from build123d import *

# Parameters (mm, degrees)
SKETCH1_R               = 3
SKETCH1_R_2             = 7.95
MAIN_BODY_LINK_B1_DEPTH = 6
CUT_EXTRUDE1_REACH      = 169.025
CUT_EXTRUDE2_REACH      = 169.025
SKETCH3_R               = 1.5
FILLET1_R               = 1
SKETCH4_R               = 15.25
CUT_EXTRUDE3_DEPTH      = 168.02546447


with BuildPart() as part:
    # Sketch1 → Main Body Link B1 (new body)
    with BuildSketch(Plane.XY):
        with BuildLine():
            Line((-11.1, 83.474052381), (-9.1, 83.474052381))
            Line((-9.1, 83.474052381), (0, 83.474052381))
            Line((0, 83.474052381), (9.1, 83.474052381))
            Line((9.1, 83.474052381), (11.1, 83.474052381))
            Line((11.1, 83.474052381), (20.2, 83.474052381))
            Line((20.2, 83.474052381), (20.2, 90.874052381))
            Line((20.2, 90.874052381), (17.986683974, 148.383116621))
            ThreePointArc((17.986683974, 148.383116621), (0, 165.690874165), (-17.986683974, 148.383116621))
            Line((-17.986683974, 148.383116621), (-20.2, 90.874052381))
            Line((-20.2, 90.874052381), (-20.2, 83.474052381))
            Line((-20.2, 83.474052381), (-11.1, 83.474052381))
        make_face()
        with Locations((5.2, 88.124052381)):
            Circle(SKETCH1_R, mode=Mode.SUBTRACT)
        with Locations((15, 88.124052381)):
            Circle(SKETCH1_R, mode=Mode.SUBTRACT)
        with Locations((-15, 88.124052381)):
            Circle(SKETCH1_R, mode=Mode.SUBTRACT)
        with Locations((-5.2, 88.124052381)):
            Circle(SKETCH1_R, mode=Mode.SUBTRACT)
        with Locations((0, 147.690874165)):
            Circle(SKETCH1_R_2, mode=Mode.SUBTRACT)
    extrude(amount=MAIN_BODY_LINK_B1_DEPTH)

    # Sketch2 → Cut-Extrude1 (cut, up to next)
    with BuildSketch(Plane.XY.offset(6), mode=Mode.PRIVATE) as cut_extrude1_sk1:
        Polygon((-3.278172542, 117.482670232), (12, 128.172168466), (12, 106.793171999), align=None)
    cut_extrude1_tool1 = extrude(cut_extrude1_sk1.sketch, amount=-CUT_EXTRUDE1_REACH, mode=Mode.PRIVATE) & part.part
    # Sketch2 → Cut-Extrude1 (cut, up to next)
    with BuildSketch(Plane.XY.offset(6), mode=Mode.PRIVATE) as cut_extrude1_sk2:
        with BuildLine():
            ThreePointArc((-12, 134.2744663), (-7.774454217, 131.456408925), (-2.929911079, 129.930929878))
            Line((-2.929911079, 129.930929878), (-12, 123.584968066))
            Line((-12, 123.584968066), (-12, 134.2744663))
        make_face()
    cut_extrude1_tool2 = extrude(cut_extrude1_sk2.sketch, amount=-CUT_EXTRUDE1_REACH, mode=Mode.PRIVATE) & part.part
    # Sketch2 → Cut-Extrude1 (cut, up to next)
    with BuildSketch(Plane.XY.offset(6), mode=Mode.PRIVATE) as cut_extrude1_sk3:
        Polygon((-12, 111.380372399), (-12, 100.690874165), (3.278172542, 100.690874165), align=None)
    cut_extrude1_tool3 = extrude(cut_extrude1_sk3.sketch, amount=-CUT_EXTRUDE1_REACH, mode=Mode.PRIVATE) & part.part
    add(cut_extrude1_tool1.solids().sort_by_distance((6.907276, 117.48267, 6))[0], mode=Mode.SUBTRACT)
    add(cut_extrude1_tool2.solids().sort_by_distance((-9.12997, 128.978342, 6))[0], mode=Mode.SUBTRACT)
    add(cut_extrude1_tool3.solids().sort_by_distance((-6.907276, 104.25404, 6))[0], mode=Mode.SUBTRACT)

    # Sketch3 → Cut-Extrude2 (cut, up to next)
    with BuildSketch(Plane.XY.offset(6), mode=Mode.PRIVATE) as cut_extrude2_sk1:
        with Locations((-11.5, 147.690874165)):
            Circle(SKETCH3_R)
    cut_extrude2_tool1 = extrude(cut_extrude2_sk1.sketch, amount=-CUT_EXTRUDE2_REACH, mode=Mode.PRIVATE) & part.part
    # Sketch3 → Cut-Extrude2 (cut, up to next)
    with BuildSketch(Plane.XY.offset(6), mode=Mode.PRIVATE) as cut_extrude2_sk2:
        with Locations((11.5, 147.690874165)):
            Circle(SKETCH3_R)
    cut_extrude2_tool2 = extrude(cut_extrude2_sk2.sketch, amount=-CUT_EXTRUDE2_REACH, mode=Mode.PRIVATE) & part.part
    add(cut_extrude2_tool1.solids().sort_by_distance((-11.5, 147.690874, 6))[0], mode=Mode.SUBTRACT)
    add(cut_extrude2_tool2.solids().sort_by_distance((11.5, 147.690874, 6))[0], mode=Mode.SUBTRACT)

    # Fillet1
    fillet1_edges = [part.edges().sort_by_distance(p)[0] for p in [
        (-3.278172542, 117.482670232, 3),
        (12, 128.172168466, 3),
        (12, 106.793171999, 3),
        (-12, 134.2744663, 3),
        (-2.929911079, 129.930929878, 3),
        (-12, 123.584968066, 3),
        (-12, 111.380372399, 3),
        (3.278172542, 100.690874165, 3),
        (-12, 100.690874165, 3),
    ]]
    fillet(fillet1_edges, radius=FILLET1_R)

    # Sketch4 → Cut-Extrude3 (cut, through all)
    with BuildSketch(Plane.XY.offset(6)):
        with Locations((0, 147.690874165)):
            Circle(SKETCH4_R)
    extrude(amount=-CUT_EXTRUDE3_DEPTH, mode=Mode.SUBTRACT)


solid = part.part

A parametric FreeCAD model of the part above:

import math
import FreeCAD as App
import Part
import Sketcher
Q = App.Units.Quantity


def edges_at(feature, points):
    """Names of the edges that pass closest to the given points."""
    edges = feature.Shape.Edges
    near = lambda p: min(range(len(edges)), key=lambda i: edges[i].distToShape(Part.Vertex(*p))[0])
    return sorted({f"Edge{near(p) + 1}" for p in points})


def add_polygon(sketch, points):
    """Adds a closed chain of lines whose ends are joined by coincident constraints."""
    first, n = sketch.GeometryCount, len(points)
    for a, b in zip(points, points[1:] + points[:1]):
        sketch.addGeometry(Part.LineSegment(App.Vector(*a, 0), App.Vector(*b, 0)), False)
    for i in range(n):
        sketch.addConstraint(Sketcher.Constraint("Coincident", first + i, 2, first + (i + 1) % n, 1))

doc = App.newDocument("Part")
body = doc.addObject("PartDesign::Body", "Body")

sketch1 = body.newObject("Sketcher::SketchObject", "Sketch")
sketch1.AttachmentSupport = (doc.getObject("XY_Plane"), [""])
sketch1.MapMode = "FlatFace"
sketch1.addGeometry(Part.LineSegment(App.Vector(20.2, 83.5, 0), App.Vector(20.2, 90.9, 0)), False)
sketch1.addGeometry(Part.LineSegment(App.Vector(20.2, 90.9, 0), App.Vector(18, 148.4, 0)), False)
sketch1.addGeometry(Part.ArcOfCircle(Part.Circle(App.Vector(0, 147.7, 0), App.Vector(0, 0, 1), 18), math.radians(2), math.radians(178)), False)
sketch1.addGeometry(Part.LineSegment(App.Vector(-18, 148.4, 0), App.Vector(-20.2, 90.9, 0)), False)
sketch1.addGeometry(Part.LineSegment(App.Vector(-20.2, 90.9, 0), App.Vector(-20.2, 83.5, 0)), False)
sketch1.addGeometry(Part.LineSegment(App.Vector(-20.2, 83.5, 0), App.Vector(20.2, 83.5, 0)), False)
sketch1.addGeometry(Part.Circle(App.Vector(-15, 88.1, 0), App.Vector(0, 0, 1), 3), False)
sketch1.addGeometry(Part.Circle(App.Vector(-5.2, 88.1, 0), App.Vector(0, 0, 1), 3), False)
sketch1.addGeometry(Part.Circle(App.Vector(5.2, 88.1, 0), App.Vector(0, 0, 1), 3), False)
sketch1.addGeometry(Part.Circle(App.Vector(15, 88.1, 0), App.Vector(0, 0, 1), 3), False)
sketch1.addGeometry(Part.Circle(App.Vector(0, 147.7, 0), App.Vector(0, 0, 1), 8), False)
sketch1.addConstraint(Sketcher.Constraint("Coincident", 0, 2, 1, 1))
sketch1.addConstraint(Sketcher.Constraint("Tangent", 1, 2, 2, 1))
sketch1.addConstraint(Sketcher.Constraint("Tangent", 2, 2, 3, 1))
sketch1.addConstraint(Sketcher.Constraint("Coincident", 3, 2, 4, 1))
sketch1.addConstraint(Sketcher.Constraint("Coincident", 4, 2, 5, 1))
sketch1.addConstraint(Sketcher.Constraint("Coincident", 5, 2, 0, 1))
sketch1.addConstraint(Sketcher.Constraint("Vertical", 0))
sketch1.addConstraint(Sketcher.Constraint("Vertical", 4))
sketch1.addConstraint(Sketcher.Constraint("Horizontal", 5))
sketch1.addConstraint(Sketcher.Constraint("Coincident", 10, 3, 2, 3))
sketch1.addConstraint(Sketcher.Constraint("Equal", 6, 7))
sketch1.addConstraint(Sketcher.Constraint("Equal", 7, 8))
sketch1.addConstraint(Sketcher.Constraint("Equal", 8, 9))
sketch1.addConstraint(Sketcher.Constraint("Symmetric", 7, 3, 8, 3, -2))
sketch1.addConstraint(Sketcher.Constraint("Symmetric", 6, 3, 9, 3, -2))
sketch1.addConstraint(Sketcher.Constraint("Symmetric", 1, 2, 2, 2, -2))
sketch1.addConstraint(Sketcher.Constraint("Horizontal", 6, 3, 7, 3))
sketch1.addConstraint(Sketcher.Constraint("Horizontal", 0, 2, 3, 2))
sketch1.addConstraint(Sketcher.Constraint("Diameter", 6, Q("6 mm")))
sketch1.addConstraint(Sketcher.Constraint("Radius", 2, Q("18 mm")))
sketch1.addConstraint(Sketcher.Constraint("Diameter", 10, Q("15.9 mm")))
sketch1.addConstraint(Sketcher.Constraint("DistanceX", 5, 1, 5, 2, Q("40.4 mm")))
sketch1.addConstraint(Sketcher.Constraint("DistanceY", 0, 1, 0, 2, Q("7.4 mm")))
sketch1.addConstraint(Sketcher.Constraint("DistanceX", 6, 3, -1, 1, Q("15 mm")))
sketch1.addConstraint(Sketcher.Constraint("DistanceX", 8, 3, 0, 2, Q("15 mm")))
sketch1.addConstraint(Sketcher.Constraint("DistanceY", 9, 3, 0, 2, Q("2.75 mm")))
sketch1.addConstraint(Sketcher.Constraint("Distance", 1, Q("57.55164 mm")))
sketch1.addConstraint(Sketcher.Constraint("DistanceY", -1, 1, 2, 3, Q("147.690874 mm")))
pad1 = body.newObject("PartDesign::Pad", "Pad")
pad1.Profile = sketch1
pad1.Length = 6

sketch2 = body.newObject("Sketcher::SketchObject", "Sketch001")
sketch2.AttachmentSupport = (doc.getObject("XY_Plane"), [""])
sketch2.MapMode = "FlatFace"
sketch2.AttachmentOffset = App.Placement(App.Vector(0, 0, 6), App.Rotation())
add_polygon(sketch2, [(12, 128), (-3, 117), (12, 107)])
sketch2.addConstraint(Sketcher.Constraint("Vertical", 2))
sketch2.addConstraint(Sketcher.Constraint("Equal", 0, 1))
sketch2.addConstraint(Sketcher.Constraint("DistanceX", -1, 1, 1, 2, Q("12 mm")))
sketch2.addConstraint(Sketcher.Constraint("DistanceY", 1, 2, 0, 2, Q("10.689498 mm")))
sketch2.addConstraint(Sketcher.Constraint("Distance", 0, Q("18.646392 mm")))
sketch2.addConstraint(Sketcher.Constraint("DistanceY", -1, 1, 0, 2, Q("117.48267 mm")))
pocket1 = body.newObject("PartDesign::Pocket", "Pocket")
pocket1.Profile = sketch2
pocket1.Type = "UpToFirst"

sketch3 = body.newObject("Sketcher::SketchObject", "Sketch002")
sketch3.AttachmentSupport = (doc.getObject("XY_Plane"), [""])
sketch3.MapMode = "FlatFace"
sketch3.AttachmentOffset = App.Placement(App.Vector(0, 0, 6), App.Rotation())
sketch3.addGeometry(Part.ArcOfCircle(Part.Circle(App.Vector(0, 148, 0), App.Vector(0, 0, 1), 18), math.radians(-132), math.radians(-99)), False)
sketch3.addGeometry(Part.LineSegment(App.Vector(-12, 134, 0), App.Vector(-12, 124, 0)), False)
sketch3.addGeometry(Part.LineSegment(App.Vector(-12, 124, 0), App.Vector(-3, 130, 0)), False)
sketch3.addConstraint(Sketcher.Constraint("Coincident", 0, 1, 1, 1))
sketch3.addConstraint(Sketcher.Constraint("Coincident", 1, 2, 2, 1))
sketch3.addConstraint(Sketcher.Constraint("Coincident", 2, 2, 0, 2))
sketch3.addConstraint(Sketcher.Constraint("Vertical", 1))
sketch3.addConstraint(Sketcher.Constraint("PointOnObject", 0, 3, -2))
sketch3.addConstraint(Sketcher.Constraint("Radius", 0, Q("18 mm")))
sketch3.addConstraint(Sketcher.Constraint("DistanceX", 0, 1, -1, 1, Q("12 mm")))
sketch3.addConstraint(Sketcher.Constraint("DistanceY", 1, 2, 1, 1, Q("10.689498 mm")))
sketch3.addConstraint(Sketcher.Constraint("DistanceY", -1, 1, 1, 2, Q("123.584968 mm")))
sketch3.addConstraint(Sketcher.Constraint("DistanceX", 2, 2, -1, 1, Q("2.929911 mm")))
pocket2 = body.newObject("PartDesign::Pocket", "Pocket001")
pocket2.Profile = sketch3
pocket2.Type = "UpToFirst"

sketch4 = body.newObject("Sketcher::SketchObject", "Sketch003")
sketch4.AttachmentSupport = (doc.getObject("XY_Plane"), [""])
sketch4.MapMode = "FlatFace"
sketch4.AttachmentOffset = App.Placement(App.Vector(0, 0, 6), App.Rotation())
add_polygon(sketch4, [(-12, 111), (-12, 101), (3, 101)])
sketch4.addConstraint(Sketcher.Constraint("Vertical", 0))
sketch4.addConstraint(Sketcher.Constraint("Horizontal", 1))
sketch4.addConstraint(Sketcher.Constraint("DistanceX", 0, 2, -1, 1, Q("12 mm")))
sketch4.addConstraint(Sketcher.Constraint("DistanceY", 0, 2, 0, 1, Q("10.689498 mm")))
sketch4.addConstraint(Sketcher.Constraint("Distance", 2, Q("18.646392 mm")))
sketch4.addConstraint(Sketcher.Constraint("DistanceY", -1, 1, 0, 2, Q("100.690874 mm")))
pocket3 = body.newObject("PartDesign::Pocket", "Pocket002")
pocket3.Profile = sketch4
pocket3.Type = "UpToFirst"

sketch5 = body.newObject("Sketcher::SketchObject", "Sketch004")
sketch5.AttachmentSupport = (doc.getObject("XY_Plane"), [""])
sketch5.MapMode = "FlatFace"
sketch5.AttachmentOffset = App.Placement(App.Vector(0, 0, 6), App.Rotation())
sketch5.addGeometry(Part.Circle(App.Vector(-11.5, 147.7, 0), App.Vector(0, 0, 1), 1.5), False)
sketch5.addConstraint(Sketcher.Constraint("Diameter", 0, Q("3 mm")))
sketch5.addConstraint(Sketcher.Constraint("DistanceX", 0, 3, -1, 1, Q("11.5 mm")))
sketch5.addConstraint(Sketcher.Constraint("DistanceY", -1, 1, 0, 3, Q("147.690874 mm")))
pocket4 = body.newObject("PartDesign::Pocket", "Pocket003")
pocket4.Profile = sketch5
pocket4.Type = "UpToFirst"

sketch6 = body.newObject("Sketcher::SketchObject", "Sketch005")
sketch6.AttachmentSupport = (doc.getObject("XY_Plane"), [""])
sketch6.MapMode = "FlatFace"
sketch6.AttachmentOffset = App.Placement(App.Vector(0, 0, 6), App.Rotation())
sketch6.addGeometry(Part.Circle(App.Vector(11.5, 147.7, 0), App.Vector(0, 0, 1), 1.5), False)
sketch6.addConstraint(Sketcher.Constraint("Diameter", 0, Q("3 mm")))
sketch6.addConstraint(Sketcher.Constraint("DistanceX", -1, 1, 0, 3, Q("11.5 mm")))
sketch6.addConstraint(Sketcher.Constraint("DistanceY", -1, 1, 0, 3, Q("147.690874 mm")))
pocket5 = body.newObject("PartDesign::Pocket", "Pocket004")
pocket5.Profile = sketch6
pocket5.Type = "UpToFirst"
doc.recompute()

fillet = body.newObject("PartDesign::Fillet", "Fillet")
fillet.Base = (pocket5, edges_at(pocket5, [
    (-3.278, 117.483, 3),
    (12, 128.172, 3),
    (12, 106.793, 3),
    (-12, 134.274, 3),
    (-2.93, 129.931, 3),
    (-12, 123.585, 3),
    (-12, 111.38, 3),
    (3.278, 100.691, 3),
    (-12, 100.691, 3),
]))
fillet.Radius = 1

sketch7 = body.newObject("Sketcher::SketchObject", "Sketch006")
sketch7.AttachmentSupport = (doc.getObject("XY_Plane"), [""])
sketch7.MapMode = "FlatFace"
sketch7.AttachmentOffset = App.Placement(App.Vector(0, 0, 6), App.Rotation())
sketch7.addGeometry(Part.Circle(App.Vector(0, 148, 0), App.Vector(0, 0, 1), 15), False)
sketch7.addConstraint(Sketcher.Constraint("PointOnObject", 0, 3, -2))
sketch7.addConstraint(Sketcher.Constraint("Diameter", 0, Q("30.5 mm")))
sketch7.addConstraint(Sketcher.Constraint("DistanceY", -1, 1, 0, 3, Q("147.690874 mm")))
pocket6 = body.newObject("PartDesign::Pocket", "Pocket005")
pocket6.Profile = sketch7
pocket6.Type = "ThroughAll"

doc.recompute()
